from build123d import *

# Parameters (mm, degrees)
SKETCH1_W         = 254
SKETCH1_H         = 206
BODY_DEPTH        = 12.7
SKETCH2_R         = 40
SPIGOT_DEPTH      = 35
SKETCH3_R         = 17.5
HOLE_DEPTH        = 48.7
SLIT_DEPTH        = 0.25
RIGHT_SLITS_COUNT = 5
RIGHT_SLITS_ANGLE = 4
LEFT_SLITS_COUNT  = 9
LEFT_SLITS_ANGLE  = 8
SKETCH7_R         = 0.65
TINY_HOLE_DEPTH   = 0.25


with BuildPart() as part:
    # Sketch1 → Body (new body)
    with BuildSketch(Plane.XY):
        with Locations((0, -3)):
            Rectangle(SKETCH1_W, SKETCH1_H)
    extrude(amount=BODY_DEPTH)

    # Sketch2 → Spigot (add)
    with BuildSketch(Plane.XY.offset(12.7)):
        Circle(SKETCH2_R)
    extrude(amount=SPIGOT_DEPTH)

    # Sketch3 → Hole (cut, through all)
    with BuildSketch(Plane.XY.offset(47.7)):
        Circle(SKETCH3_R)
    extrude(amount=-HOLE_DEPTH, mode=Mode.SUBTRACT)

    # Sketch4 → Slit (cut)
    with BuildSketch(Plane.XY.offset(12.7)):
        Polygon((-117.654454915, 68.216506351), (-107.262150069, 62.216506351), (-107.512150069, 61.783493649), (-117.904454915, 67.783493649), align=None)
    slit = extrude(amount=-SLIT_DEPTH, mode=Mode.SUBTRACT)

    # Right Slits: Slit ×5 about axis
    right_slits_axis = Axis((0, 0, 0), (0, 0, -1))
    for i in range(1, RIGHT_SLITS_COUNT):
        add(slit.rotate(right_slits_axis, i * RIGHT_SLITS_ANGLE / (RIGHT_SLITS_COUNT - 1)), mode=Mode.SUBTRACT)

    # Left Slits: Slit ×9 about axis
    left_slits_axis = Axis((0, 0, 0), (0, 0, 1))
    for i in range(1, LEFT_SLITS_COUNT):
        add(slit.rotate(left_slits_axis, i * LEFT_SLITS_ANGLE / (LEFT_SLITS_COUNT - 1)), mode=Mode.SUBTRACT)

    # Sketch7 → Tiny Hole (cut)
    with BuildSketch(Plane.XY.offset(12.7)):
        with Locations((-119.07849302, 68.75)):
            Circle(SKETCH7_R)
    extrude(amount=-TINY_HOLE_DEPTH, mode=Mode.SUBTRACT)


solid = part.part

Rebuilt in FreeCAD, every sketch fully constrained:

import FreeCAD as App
import Part
import Sketcher

V = App.Vector
Q = App.Units.Quantity

doc = App.newDocument("Part")
body = doc.addObject("PartDesign::Body", "Body")

# Sketch on XY plane
sketch1 = doc.addObject("Sketcher::SketchObject", "Sketch")
body.addObject(sketch1)
sketch1.AttachmentSupport = (doc.XY_Plane, [""])
sketch1.MapMode = "FlatFace"
sketch1.addGeometry([
    Part.LineSegment(V(-127, 100, 0), V(-127, -106, 0)),
    Part.LineSegment(V(-127, -106, 0), V(127, -106, 0)),
    Part.LineSegment(V(127, -106, 0), V(127, 100, 0)),
    Part.LineSegment(V(127, 100, 0), V(-127, 100, 0)),
], False)
sketch1.addConstraint([
    Sketcher.Constraint("Coincident", 0, 2, 1, 1),
    Sketcher.Constraint("Coincident", 1, 2, 2, 1),
    Sketcher.Constraint("Coincident", 2, 2, 3, 1),
    Sketcher.Constraint("Coincident", 3, 2, 0, 1),
    Sketcher.Constraint("Vertical", 0),
    Sketcher.Constraint("Horizontal", 1),
    Sketcher.Constraint("Vertical", 2),
    Sketcher.Constraint("Horizontal", 3),
    Sketcher.Constraint("DistanceX", 1, 1, 1, 2, 254.0),
    Sketcher.Constraint("DistanceY", 0, 2, 0, 1, 206.0),
    Sketcher.Constraint("DistanceX", 0, 2, -1, 1, 127.0),
    Sketcher.Constraint("DistanceY", 0, 2, -1, 1, 106.0),
])
pad1 = doc.addObject("PartDesign::Pad", "Pad")
body.addObject(pad1)
pad1.Profile = sketch1
pad1.Length = 12.7

# Sketch on XY plane
sketch2 = doc.addObject("Sketcher::SketchObject", "Sketch001")
body.addObject(sketch2)
sketch2.AttachmentSupport = (doc.XY_Plane, [""])
sketch2.MapMode = "FlatFace"
sketch2.AttachmentOffset = App.Placement(V(0, 0, 12.7), App.Rotation())
sketch2.addGeometry(Part.Circle(V(0, 0, 0), V(0, 0, 1), 40), False)
sketch2.addConstraint([
    Sketcher.Constraint("Coincident", 0, 3, -1, 1),
    Sketcher.Constraint("Diameter", 0, 80.0),
])
pad2 = doc.addObject("PartDesign::Pad", "Pad001")
body.addObject(pad2)
pad2.Profile = sketch2
pad2.Length = 35

# Sketch on XY plane
sketch3 = doc.addObject("Sketcher::SketchObject", "Sketch002")
body.addObject(sketch3)
sketch3.AttachmentSupport = (doc.XY_Plane, [""])
sketch3.MapMode = "FlatFace"
sketch3.AttachmentOffset = App.Placement(V(0, 0, 47.7), App.Rotation())
sketch3.addGeometry(Part.Circle(V(0, 0, 0), V(0, 0, 1), 17.5), False)
sketch3.addConstraint([
    Sketcher.Constraint("Coincident", 0, 3, -1, 1),
    Sketcher.Constraint("Diameter", 0, 35.0),
])
pocket1 = doc.addObject("PartDesign::Pocket", "Pocket")
body.addObject(pocket1)
pocket1.Profile = sketch3
pocket1.Type = "ThroughAll"

# Sketch on XY plane
sketch4 = doc.addObject("Sketcher::SketchObject", "Sketch003")
body.addObject(sketch4)
sketch4.AttachmentSupport = (doc.XY_Plane, [""])
sketch4.MapMode = "FlatFace"
sketch4.AttachmentOffset = App.Placement(V(0, 0, 12.7), App.Rotation())
sketch4.addGeometry([
    Part.LineSegment(V(-107.26215, 62.216506, 0), V(-117.654455, 68.216506, 0)),
    Part.LineSegment(V(-117.654455, 68.216506, 0), V(-117.904455, 67.783494, 0)),
    Part.LineSegment(V(-117.904455, 67.783494, 0), V(-107.51215, 61.783494, 0)),
    Part.LineSegment(V(-107.51215, 61.783494, 0), V(-107.26215, 62.216506, 0)),
], False)
sketch4.addConstraint([
    Sketcher.Constraint("Coincident", 0, 2, 1, 1),
    Sketcher.Constraint("Coincident", 1, 2, 2, 1),
    Sketcher.Constraint("Coincident", 2, 2, 3, 1),
    Sketcher.Constraint("Coincident", 3, 2, 0, 1),
    Sketcher.Constraint("Perpendicular", 0, 1),
    Sketcher.Constraint("Perpendicular", 1, 2),
    Sketcher.Constraint("Perpendicular", 2, 3),
    Sketcher.Constraint("Angle", 0, Q("150 deg")),
    Sketcher.Constraint("Distance", 0, 12.0),
    Sketcher.Constraint("Distance", 1, 0.5),
    Sketcher.Constraint("DistanceX", 2, 2, -1, 1, 107.51215),
    Sketcher.Constraint("DistanceY", -1, 1, 0, 2, 68.216506),
])
pocket2 = doc.addObject("PartDesign::Pocket", "Pocket001")
body.addObject(pocket2)
pocket2.Profile = sketch4
pocket2.Length = 0.25
doc.recompute()

polarpattern = doc.addObject("PartDesign::PolarPattern", "PolarPattern")
body.addObject(polarpattern)
polarpattern.Originals = [pocket2]
polarpattern.Axis = (doc.Z_Axis, [""])
polarpattern.Angle = 4
polarpattern.Occurrences = 5
polarpattern.Reversed = True
body.Tip = polarpattern
doc.recompute()

polarpattern2 = doc.addObject("PartDesign::PolarPattern", "PolarPattern001")
body.addObject(polarpattern2)
polarpattern2.Originals = [pocket2]
polarpattern2.Axis = (doc.Z_Axis, [""])
polarpattern2.Angle = 8
polarpattern2.Occurrences = 9
body.Tip = polarpattern2

# Sketch on XY plane
sketch5 = doc.addObject("Sketcher::SketchObject", "Sketch004")
body.addObject(sketch5)
sketch5.AttachmentSupport = (doc.XY_Plane, [""])
sketch5.MapMode = "FlatFace"
sketch5.AttachmentOffset = App.Placement(V(0, 0, 12.7), App.Rotation())
sketch5.addGeometry(Part.Circle(V(-119.078493, 68.75, 0), V(0, 0, 1), 0.65), False)
sketch5.addConstraint([
    Sketcher.Constraint("Diameter", 0, 1.3),
    Sketcher.Constraint("DistanceY", -1, 1, 0, 3, 68.75),
    Sketcher.Constraint("DistanceX", 0, 3, -1, 1, 119.078493),
])
pocket3 = doc.addObject("PartDesign::Pocket", "Pocket002")
body.addObject(pocket3)
pocket3.Profile = sketch5
pocket3.Length = 0.25

doc.recompute()
